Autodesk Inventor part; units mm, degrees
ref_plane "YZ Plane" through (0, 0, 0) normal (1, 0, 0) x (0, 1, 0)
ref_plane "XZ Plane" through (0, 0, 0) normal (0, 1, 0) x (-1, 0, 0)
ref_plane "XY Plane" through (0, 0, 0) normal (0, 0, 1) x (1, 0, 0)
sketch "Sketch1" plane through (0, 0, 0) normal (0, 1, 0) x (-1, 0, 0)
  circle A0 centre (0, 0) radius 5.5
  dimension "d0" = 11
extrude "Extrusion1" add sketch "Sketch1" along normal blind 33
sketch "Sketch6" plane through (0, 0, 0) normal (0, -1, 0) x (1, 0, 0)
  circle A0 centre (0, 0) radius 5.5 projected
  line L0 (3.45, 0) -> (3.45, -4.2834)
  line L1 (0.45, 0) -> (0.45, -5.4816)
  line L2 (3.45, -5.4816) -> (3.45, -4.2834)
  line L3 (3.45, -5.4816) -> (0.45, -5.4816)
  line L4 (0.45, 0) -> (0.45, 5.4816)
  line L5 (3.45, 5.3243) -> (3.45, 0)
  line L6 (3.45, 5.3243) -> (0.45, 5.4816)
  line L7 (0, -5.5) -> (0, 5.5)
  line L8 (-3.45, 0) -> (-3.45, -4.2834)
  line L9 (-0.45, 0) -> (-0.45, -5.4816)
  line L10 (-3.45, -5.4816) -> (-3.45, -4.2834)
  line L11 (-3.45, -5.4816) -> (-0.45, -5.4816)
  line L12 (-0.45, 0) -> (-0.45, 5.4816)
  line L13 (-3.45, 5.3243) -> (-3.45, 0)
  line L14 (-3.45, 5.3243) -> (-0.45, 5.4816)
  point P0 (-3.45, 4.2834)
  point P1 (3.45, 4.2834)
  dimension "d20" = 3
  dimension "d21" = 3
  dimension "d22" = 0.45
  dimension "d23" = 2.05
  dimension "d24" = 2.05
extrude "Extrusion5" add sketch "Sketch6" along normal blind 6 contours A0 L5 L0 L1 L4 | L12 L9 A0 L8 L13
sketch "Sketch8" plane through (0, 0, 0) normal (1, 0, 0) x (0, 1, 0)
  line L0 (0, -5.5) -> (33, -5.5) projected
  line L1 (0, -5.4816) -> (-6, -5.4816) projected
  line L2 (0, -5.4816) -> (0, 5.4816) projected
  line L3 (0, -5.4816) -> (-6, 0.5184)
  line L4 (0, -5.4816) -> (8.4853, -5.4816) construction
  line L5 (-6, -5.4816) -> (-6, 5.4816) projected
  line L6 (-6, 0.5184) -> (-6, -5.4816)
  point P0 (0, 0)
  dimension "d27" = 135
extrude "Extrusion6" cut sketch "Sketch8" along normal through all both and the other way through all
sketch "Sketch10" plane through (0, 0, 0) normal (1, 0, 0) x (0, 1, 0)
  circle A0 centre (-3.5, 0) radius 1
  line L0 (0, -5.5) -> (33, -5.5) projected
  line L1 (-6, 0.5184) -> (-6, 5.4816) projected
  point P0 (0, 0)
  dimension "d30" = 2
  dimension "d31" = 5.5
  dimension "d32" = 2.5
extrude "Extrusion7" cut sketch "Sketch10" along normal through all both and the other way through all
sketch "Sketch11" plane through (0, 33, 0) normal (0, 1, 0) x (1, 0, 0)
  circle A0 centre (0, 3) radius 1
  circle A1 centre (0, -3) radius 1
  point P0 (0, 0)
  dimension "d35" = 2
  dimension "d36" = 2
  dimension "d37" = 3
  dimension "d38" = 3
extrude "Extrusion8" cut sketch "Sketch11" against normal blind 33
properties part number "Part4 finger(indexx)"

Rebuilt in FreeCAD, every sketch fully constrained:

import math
import FreeCAD as App
import Part
import Sketcher
Q = App.Units.Quantity


def add_polygon(sketch, points):
    """Adds a closed chain of lines whose ends are joined by coincident constraints."""
    first, n = sketch.GeometryCount, len(points)
    for a, b in zip(points, points[1:] + points[:1]):
        sketch.addGeometry(Part.LineSegment(App.Vector(*a, 0), App.Vector(*b, 0)), False)
    for i in range(n):
        sketch.addConstraint(Sketcher.Constraint("Coincident", first + i, 2, first + (i + 1) % n, 1))

doc = App.newDocument("Part")
body = doc.addObject("PartDesign::Body", "Body")

sketch1 = body.newObject("Sketcher::SketchObject", "Sketch")
sketch1.AttachmentSupport = (doc.getObject("XZ_Plane"), [""])
sketch1.MapMode = "FlatFace"
sketch1.addGeometry(Part.Circle(App.Vector(0, 0, 0), App.Vector(0, 0, 1), 6), False)
sketch1.addConstraint(Sketcher.Constraint("Coincident", 0, 3, -1, 1))
sketch1.addConstraint(Sketcher.Constraint("Diameter", 0, Q("11 mm")))
pad1 = body.newObject("PartDesign::Pad", "Pad")
pad1.Profile = sketch1
pad1.Length = 33
pad1.Reversed = True

sketch2 = body.newObject("Sketcher::SketchObject", "Sketch001")
sketch2.AttachmentSupport = (doc.getObject("XZ_Plane"), [""])
sketch2.MapMode = "FlatFace"
sketch2.addGeometry(Part.ArcOfCircle(Part.Circle(App.Vector(0, 0, 0), App.Vector(0, 0, 1), 5.5), math.radians(51), math.radians(85)), False)
sketch2.addGeometry(Part.LineSegment(App.Vector(0.5, 5.5, 0), App.Vector(0.5, -5.5, 0)), False)
sketch2.addGeometry(Part.ArcOfCircle(Part.Circle(App.Vector(0, 0, 0), App.Vector(0, 0, 1), 5.5), math.radians(-85), math.radians(-51)), False)
sketch2.addGeometry(Part.LineSegment(App.Vector(3.5, -4.3, 0), App.Vector(3.5, 4.3, 0)), False)
sketch2.addGeometry(Part.LineSegment(App.Vector(-0.5, -5.5, 0), App.Vector(-0.5, 5.5, 0)), False)
sketch2.addGeometry(Part.ArcOfCircle(Part.Circle(App.Vector(0, 0, 0), App.Vector(0, 0, 1), 5.5), math.radians(95), math.radians(129)), False)
sketch2.addGeometry(Part.LineSegment(App.Vector(-3.5, 4.3, 0), App.Vector(-3.5, -4.3, 0)), False)
sketch2.addGeometry(Part.ArcOfCircle(Part.Circle(App.Vector(0, 0, 0), App.Vector(0, 0, 1), 5.5), math.radians(-129), math.radians(-95)), False)
sketch2.addConstraint(Sketcher.Constraint("Coincident", 0, 2, 1, 1))
sketch2.addConstraint(Sketcher.Constraint("Coincident", 1, 2, 2, 1))
sketch2.addConstraint(Sketcher.Constraint("Coincident", 2, 2, 3, 1))
sketch2.addConstraint(Sketcher.Constraint("Coincident", 3, 2, 0, 1))
sketch2.addConstraint(Sketcher.Constraint("Coincident", 4, 2, 5, 1))
sketch2.addConstraint(Sketcher.Constraint("Coincident", 5, 2, 6, 1))
sketch2.addConstraint(Sketcher.Constraint("Coincident", 6, 2, 7, 1))
sketch2.addConstraint(Sketcher.Constraint("Coincident", 7, 2, 4, 1))
sketch2.addConstraint(Sketcher.Constraint("Vertical", 1))
sketch2.addConstraint(Sketcher.Constraint("Vertical", 3))
sketch2.addConstraint(Sketcher.Constraint("Vertical", 4))
sketch2.addConstraint(Sketcher.Constraint("Vertical", 6))
sketch2.addConstraint(Sketcher.Constraint("Coincident", 0, 3, -1, 1))
sketch2.addConstraint(Sketcher.Constraint("Coincident", 2, 3, -1, 1))
sketch2.addConstraint(Sketcher.Constraint("Coincident", 5, 3, -1, 1))
sketch2.addConstraint(Sketcher.Constraint("Coincident", 7, 3, -1, 1))
sketch2.addConstraint(Sketcher.Constraint("Equal", 0, 2))
sketch2.addConstraint(Sketcher.Constraint("Equal", 2, 5))
sketch2.addConstraint(Sketcher.Constraint("Equal", 5, 7))
sketch2.addConstraint(Sketcher.Constraint("Horizontal", 0, 2, 4, 2))
sketch2.addConstraint(Sketcher.Constraint("Horizontal", 3, 2, 5, 2))
sketch2.addConstraint(Sketcher.Constraint("DistanceX", 1, 2, 2, 2, Q("3 mm")))
sketch2.addConstraint(Sketcher.Constraint("Radius", 0, Q("5.5 mm")))
sketch2.addConstraint(Sketcher.Constraint("DistanceX", -1, 1, 0, 2, Q("0.45 mm")))
pad2 = body.newObject("PartDesign::Pad", "Pad001")
pad2.Profile = sketch2
pad2.Length = 6

sketch3 = body.newObject("Sketcher::SketchObject", "Sketch002")
sketch3.AttachmentSupport = (doc.getObject("YZ_Plane"), [""])
sketch3.MapMode = "FlatFace"
add_polygon(sketch3, [(-6, -5), (0, -5), (-6, 1)])
sketch3.addConstraint(Sketcher.Constraint("Horizontal", 0))
sketch3.addConstraint(Sketcher.Constraint("Vertical", 2))
sketch3.addConstraint(Sketcher.Constraint("PointOnObject", 0, 2, -2))
sketch3.addConstraint(Sketcher.Constraint("Equal", 0, 2))
sketch3.addConstraint(Sketcher.Constraint("DistanceX", 0, 1, 0, 2, Q("6 mm")))
sketch3.addConstraint(Sketcher.Constraint("DistanceY", 0, 2, -1, 1, Q("5.4816 mm")))
pocket1 = body.newObject("PartDesign::Pocket", "Pocket")
pocket1.Profile = sketch3
pocket1.Type = "ThroughAll"
pocket1.Midplane = True

sketch4 = body.newObject("Sketcher::SketchObject", "Sketch003")
sketch4.AttachmentSupport = (doc.getObject("YZ_Plane"), [""])
sketch4.MapMode = "FlatFace"
sketch4.addGeometry(Part.Circle(App.Vector(-3.5, 0, 0), App.Vector(0, 0, 1), 1), False)
sketch4.addConstraint(Sketcher.Constraint("PointOnObject", 0, 3, -1))
sketch4.addConstraint(Sketcher.Constraint("Diameter", 0, Q("2 mm")))
sketch4.addConstraint(Sketcher.Constraint("DistanceX", 0, 3, -1, 1, Q("3.5 mm")))
pocket2 = body.newObject("PartDesign::Pocket", "Pocket001")
pocket2.Profile = sketch4
pocket2.Type = "ThroughAll"
pocket2.Midplane = True

sketch5 = body.newObject("Sketcher::SketchObject", "Sketch004")
sketch5.AttachmentSupport = (doc.getObject("XZ_Plane"), [""])
sketch5.MapMode = "FlatFace"
sketch5.AttachmentOffset = App.Placement(App.Vector(0, 0, -33), App.Rotation())
sketch5.addGeometry(Part.Circle(App.Vector(0, -3, 0), App.Vector(0, 0, 1), 1), False)
sketch5.addGeometry(Part.Circle(App.Vector(0, 3, 0), App.Vector(0, 0, 1), 1), False)
sketch5.addConstraint(Sketcher.Constraint("Equal", 0, 1))
sketch5.addConstraint(Sketcher.Constraint("Symmetric", 0, 3, 1, 3, -1, 1))
sketch5.addConstraint(Sketcher.Constraint("PointOnObject", 0, 3, -2))
sketch5.addConstraint(Sketcher.Constraint("Diameter", 0, Q("2 mm")))
sketch5.addConstraint(Sketcher.Constraint("DistanceY", 0, 3, -1, 1, Q("3 mm")))
pocket3 = body.newObject("PartDesign::Pocket", "Pocket002")
pocket3.Profile = sketch5
pocket3.Length = 33
pocket3.Reversed = True

doc.recompute()
